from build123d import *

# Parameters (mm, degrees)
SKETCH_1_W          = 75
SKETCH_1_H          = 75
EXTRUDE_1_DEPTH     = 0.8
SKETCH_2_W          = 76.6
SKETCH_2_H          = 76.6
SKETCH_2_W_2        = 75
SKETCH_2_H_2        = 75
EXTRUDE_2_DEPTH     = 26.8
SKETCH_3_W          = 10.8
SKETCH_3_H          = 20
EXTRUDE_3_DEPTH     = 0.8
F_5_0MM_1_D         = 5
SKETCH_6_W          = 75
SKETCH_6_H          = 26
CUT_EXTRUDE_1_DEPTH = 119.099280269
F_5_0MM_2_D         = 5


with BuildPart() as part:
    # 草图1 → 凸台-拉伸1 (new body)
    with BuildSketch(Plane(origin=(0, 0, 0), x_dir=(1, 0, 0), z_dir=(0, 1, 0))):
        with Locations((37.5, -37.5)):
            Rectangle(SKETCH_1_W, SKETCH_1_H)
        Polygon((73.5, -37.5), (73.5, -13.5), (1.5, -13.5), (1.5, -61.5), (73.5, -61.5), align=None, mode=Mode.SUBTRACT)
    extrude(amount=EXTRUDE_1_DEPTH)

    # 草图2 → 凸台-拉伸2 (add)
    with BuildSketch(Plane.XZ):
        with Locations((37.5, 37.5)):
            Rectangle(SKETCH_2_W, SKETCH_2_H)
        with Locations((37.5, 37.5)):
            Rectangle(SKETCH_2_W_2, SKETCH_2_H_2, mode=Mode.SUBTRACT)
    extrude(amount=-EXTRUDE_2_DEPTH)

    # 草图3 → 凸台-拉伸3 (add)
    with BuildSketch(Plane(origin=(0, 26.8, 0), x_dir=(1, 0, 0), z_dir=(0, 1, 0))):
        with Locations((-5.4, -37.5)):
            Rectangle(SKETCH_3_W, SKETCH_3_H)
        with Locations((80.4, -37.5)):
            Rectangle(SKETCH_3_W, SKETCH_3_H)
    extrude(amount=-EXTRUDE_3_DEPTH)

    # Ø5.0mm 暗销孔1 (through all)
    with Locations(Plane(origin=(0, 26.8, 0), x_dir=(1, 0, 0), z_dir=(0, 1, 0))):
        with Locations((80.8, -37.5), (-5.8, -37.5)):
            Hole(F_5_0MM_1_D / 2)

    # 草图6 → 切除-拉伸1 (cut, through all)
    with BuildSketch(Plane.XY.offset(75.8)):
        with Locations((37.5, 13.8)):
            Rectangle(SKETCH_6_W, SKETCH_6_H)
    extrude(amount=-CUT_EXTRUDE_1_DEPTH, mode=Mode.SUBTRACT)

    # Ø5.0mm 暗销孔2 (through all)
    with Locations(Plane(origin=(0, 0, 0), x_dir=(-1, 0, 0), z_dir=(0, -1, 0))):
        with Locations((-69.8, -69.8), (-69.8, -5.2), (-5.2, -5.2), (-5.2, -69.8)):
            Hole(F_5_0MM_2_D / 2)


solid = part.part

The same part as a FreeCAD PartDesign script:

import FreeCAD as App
import Part
import Sketcher
Q = App.Units.Quantity


def add_polygon(sketch, points):
    """Adds a closed chain of lines whose ends are joined by coincident constraints."""
    first, n = sketch.GeometryCount, len(points)
    for a, b in zip(points, points[1:] + points[:1]):
        sketch.addGeometry(Part.LineSegment(App.Vector(*a, 0), App.Vector(*b, 0)), False)
    for i in range(n):
        sketch.addConstraint(Sketcher.Constraint("Coincident", first + i, 2, first + (i + 1) % n, 1))

doc = App.newDocument("Part")
body = doc.addObject("PartDesign::Body", "Body")

# Sketch on XZ plane
sketch1 = body.newObject("Sketcher::SketchObject", "Sketch")
sketch1.AttachmentSupport = (doc.getObject("XZ_Plane"), [""])
sketch1.MapMode = "FlatFace"
add_polygon(sketch1, [(0, 0), (0, 75), (75, 75), (75, 0)])  # lines 0-3
add_polygon(sketch1, [(74, 14), (74, 62), (2, 62), (2, 14)])  # lines 4-7
sketch1.addConstraint(Sketcher.Constraint("Vertical", 0))
sketch1.addConstraint(Sketcher.Constraint("Horizontal", 1))
sketch1.addConstraint(Sketcher.Constraint("Vertical", 2))
sketch1.addConstraint(Sketcher.Constraint("Horizontal", 3))
sketch1.addConstraint(Sketcher.Constraint("Vertical", 4))
sketch1.addConstraint(Sketcher.Constraint("Horizontal", 5))
sketch1.addConstraint(Sketcher.Constraint("Vertical", 6))
sketch1.addConstraint(Sketcher.Constraint("Horizontal", 7))
sketch1.addConstraint(Sketcher.Constraint("Coincident", 3, 2, -1, 1))
sketch1.addConstraint(Sketcher.Constraint("Equal", 3, 0))
sketch1.addConstraint(Sketcher.Constraint("DistanceX", 1, 1, 1, 2, Q("75 mm")))
sketch1.addConstraint(Sketcher.Constraint("DistanceX", 5, 2, 5, 1, Q("72 mm")))
sketch1.addConstraint(Sketcher.Constraint("DistanceY", 4, 1, 4, 2, Q("48 mm")))
sketch1.addConstraint(Sketcher.Constraint("DistanceX", -1, 1, 4, 2, Q("73.5 mm")))
sketch1.addConstraint(Sketcher.Constraint("DistanceY", -1, 1, 4, 2, Q("61.5 mm")))
pad1 = body.newObject("PartDesign::Pad", "Pad")
pad1.Profile = sketch1
pad1.Length = 0.8
pad1.Reversed = True

# Sketch on XZ plane
sketch2 = body.newObject("Sketcher::SketchObject", "Sketch001")
sketch2.AttachmentSupport = (doc.getObject("XZ_Plane"), [""])
sketch2.MapMode = "FlatFace"
add_polygon(sketch2, [(-1, 76), (-1, -1), (76, -1), (76, 76)])  # lines 0-3
add_polygon(sketch2, [(75, 0), (0, 0), (0, 75), (75, 75)])  # lines 4-7
sketch2.addConstraint(Sketcher.Constraint("Vertical", 0))
sketch2.addConstraint(Sketcher.Constraint("Horizontal", 1))
sketch2.addConstraint(Sketcher.Constraint("Vertical", 2))
sketch2.addConstraint(Sketcher.Constraint("Horizontal", 3))
sketch2.addConstraint(Sketcher.Constraint("Horizontal", 4))
sketch2.addConstraint(Sketcher.Constraint("Vertical", 5))
sketch2.addConstraint(Sketcher.Constraint("Horizontal", 6))
sketch2.addConstraint(Sketcher.Constraint("Vertical", 7))
sketch2.addConstraint(Sketcher.Constraint("Coincident", 4, 2, -1, 1))
sketch2.addConstraint(Sketcher.Constraint("Equal", 3, 0))
sketch2.addConstraint(Sketcher.Constraint("Equal", 6, 5))
sketch2.addConstraint(Sketcher.Constraint("DistanceX", 4, 2, 4, 1, Q("75 mm")))
sketch2.addConstraint(Sketcher.Constraint("DistanceX", 1, 1, 1, 2, Q("76.6 mm")))
sketch2.addConstraint(Sketcher.Constraint("DistanceX", 0, 2, -1, 1, Q("0.8 mm")))
sketch2.addConstraint(Sketcher.Constraint("DistanceY", 0, 2, -1, 1, Q("0.8 mm")))
pad2 = body.newObject("PartDesign::Pad", "Pad001")
pad2.Profile = sketch2
pad2.Length = 26.8
pad2.Reversed = True

# Sketch on XZ plane
sketch3 = body.newObject("Sketcher::SketchObject", "Sketch002")
sketch3.AttachmentSupport = (doc.getObject("XZ_Plane"), [""])
sketch3.MapMode = "FlatFace"
sketch3.AttachmentOffset = App.Placement(App.Vector(0, 0, -26.8), App.Rotation())
add_polygon(sketch3, [(-11, 28), (-11, 48), (0, 48), (0, 28)])  # lines 0-3
add_polygon(sketch3, [(75, 28), (75, 48), (86, 48), (86, 28)])  # lines 4-7
sketch3.addConstraint(Sketcher.Constraint("Vertical", 0))
sketch3.addConstraint(Sketcher.Constraint("Horizontal", 1))
sketch3.addConstraint(Sketcher.Constraint("Vertical", 2))
sketch3.addConstraint(Sketcher.Constraint("Horizontal", 3))
sketch3.addConstraint(Sketcher.Constraint("Vertical", 4))
sketch3.addConstraint(Sketcher.Constraint("Horizontal", 5))
sketch3.addConstraint(Sketcher.Constraint("Vertical", 6))
sketch3.addConstraint(Sketcher.Constraint("Horizontal", 7))
sketch3.addConstraint(Sketcher.Constraint("PointOnObject", 1, 2, -2))
sketch3.addConstraint(Sketcher.Constraint("Horizontal", 1, 2, 4, 2))
sketch3.addConstraint(Sketcher.Constraint("Horizontal", 3, 2, 6, 2))
sketch3.addConstraint(Sketcher.Constraint("Equal", 3, 5))
sketch3.addConstraint(Sketcher.Constraint("DistanceY", 0, 1, 0, 2, Q("20 mm")))
sketch3.addConstraint(Sketcher.Constraint("DistanceX", 1, 1, 1, 2, Q("10.8 mm")))
sketch3.addConstraint(Sketcher.Constraint("DistanceX", -1, 1, 4, 2, Q("75 mm")))
sketch3.addConstraint(Sketcher.Constraint("DistanceY", -1, 1, 0, 2, Q("47.5 mm")))
pad3 = body.newObject("PartDesign::Pad", "Pad002")
pad3.Profile = sketch3
pad3.Length = 0.8

# Sketch on XZ plane
sketch4 = body.newObject("Sketcher::SketchObject", "Sketch003")
sketch4.AttachmentSupport = (doc.getObject("XZ_Plane"), [""])
sketch4.MapMode = "FlatFace"
sketch4.AttachmentOffset = App.Placement(App.Vector(0, 0, -26.8), App.Rotation())
sketch4.addGeometry(Part.Circle(App.Vector(80.8, 37.5, 0), App.Vector(0, 0, 1), 2.5), False)
sketch4.addGeometry(Part.Circle(App.Vector(-5.8, 37.5, 0), App.Vector(0, 0, 1), 2.5), False)
sketch4.addConstraint(Sketcher.Constraint("Equal", 0, 1))
sketch4.addConstraint(Sketcher.Constraint("Horizontal", 0, 3, 1, 3))
sketch4.addConstraint(Sketcher.Constraint("Diameter", 0, Q("5 mm")))
sketch4.addConstraint(Sketcher.Constraint("DistanceX", -1, 1, 0, 3, Q("80.8 mm")))
sketch4.addConstraint(Sketcher.Constraint("DistanceY", -1, 1, 0, 3, Q("37.5 mm")))
sketch4.addConstraint(Sketcher.Constraint("DistanceX", 1, 3, -1, 1, Q("5.8 mm")))
doc.recompute()
hole = body.newObject("PartDesign::Hole", "Hole")
hole.Profile = sketch4
hole.ThreadType = "None"
hole.Diameter = 5
hole.DepthType = "ThroughAll"
hole.Reversed = True

# Sketch on XY plane
sketch5 = body.newObject("Sketcher::SketchObject", "Sketch004")
sketch5.AttachmentSupport = (doc.getObject("XY_Plane"), [""])
sketch5.MapMode = "FlatFace"
sketch5.AttachmentOffset = App.Placement(App.Vector(0, 0, 75.8), App.Rotation())
add_polygon(sketch5, [(0, 27), (0, 1), (75, 1), (75, 27)])  # lines 0-3
sketch5.addConstraint(Sketcher.Constraint("Vertical", 0))
sketch5.addConstraint(Sketcher.Constraint("Horizontal", 1))
sketch5.addConstraint(Sketcher.Constraint("Vertical", 2))
sketch5.addConstraint(Sketcher.Constraint("Horizontal", 3))
sketch5.addConstraint(Sketcher.Constraint("PointOnObject", 0, 2, -2))
sketch5.addConstraint(Sketcher.Constraint("DistanceX", 1, 1, 1, 2, Q("75 mm")))
sketch5.addConstraint(Sketcher.Constraint("DistanceY", 0, 2, 0, 1, Q("26 mm")))
sketch5.addConstraint(Sketcher.Constraint("DistanceY", -1, 1, 0, 2, Q("0.8 mm")))
pocket1 = body.newObject("PartDesign::Pocket", "Pocket")
pocket1.Profile = sketch5
pocket1.Type = "ThroughAll"

# Sketch on XZ plane
sketch6 = body.newObject("Sketcher::SketchObject", "Sketch005")
sketch6.AttachmentSupport = (doc.getObject("XZ_Plane"), [""])
sketch6.MapMode = "FlatFace"
sketch6.addGeometry(Part.Circle(App.Vector(69.8, 69.8, 0), App.Vector(0, 0, 1), 2.5), False)
sketch6.addGeometry(Part.Circle(App.Vector(69.8, 5.2, 0), App.Vector(0, 0, 1), 2.5), False)
sketch6.addGeometry(Part.Circle(App.Vector(5.2, 5.2, 0), App.Vector(0, 0, 1), 2.5), False)
sketch6.addGeometry(Part.Circle(App.Vector(5.2, 69.8, 0), App.Vector(0, 0, 1), 2.5), False)
sketch6.addConstraint(Sketcher.Constraint("Equal", 0, 1))
sketch6.addConstraint(Sketcher.Constraint("Equal", 1, 2))
sketch6.addConstraint(Sketcher.Constraint("Equal", 2, 3))
sketch6.addConstraint(Sketcher.Constraint("Horizontal", 1, 3, 2, 3))
sketch6.addConstraint(Sketcher.Constraint("Horizontal", 0, 3, 3, 3))
sketch6.addConstraint(Sketcher.Constraint("Vertical", 0, 3, 1, 3))
sketch6.addConstraint(Sketcher.Constraint("Vertical", 2, 3, 3, 3))
sketch6.addConstraint(Sketcher.Constraint("Diameter", 0, Q("5 mm")))
sketch6.addConstraint(Sketcher.Constraint("DistanceX", -1, 1, 0, 3, Q("69.8 mm")))
sketch6.addConstraint(Sketcher.Constraint("DistanceY", -1, 1, 0, 3, Q("69.8 mm")))
sketch6.addConstraint(Sketcher.Constraint("DistanceY", -1, 1, 1, 3, Q("5.2 mm")))
sketch6.addConstraint(Sketcher.Constraint("DistanceX", -1, 1, 2, 3, Q("5.2 mm")))
doc.recompute()
hole2 = body.newObject("PartDesign::Hole", "Hole001")
hole2.Profile = sketch6
hole2.ThreadType = "None"
hole2.Diameter = 5
hole2.DepthType = "ThroughAll"

doc.recompute()
